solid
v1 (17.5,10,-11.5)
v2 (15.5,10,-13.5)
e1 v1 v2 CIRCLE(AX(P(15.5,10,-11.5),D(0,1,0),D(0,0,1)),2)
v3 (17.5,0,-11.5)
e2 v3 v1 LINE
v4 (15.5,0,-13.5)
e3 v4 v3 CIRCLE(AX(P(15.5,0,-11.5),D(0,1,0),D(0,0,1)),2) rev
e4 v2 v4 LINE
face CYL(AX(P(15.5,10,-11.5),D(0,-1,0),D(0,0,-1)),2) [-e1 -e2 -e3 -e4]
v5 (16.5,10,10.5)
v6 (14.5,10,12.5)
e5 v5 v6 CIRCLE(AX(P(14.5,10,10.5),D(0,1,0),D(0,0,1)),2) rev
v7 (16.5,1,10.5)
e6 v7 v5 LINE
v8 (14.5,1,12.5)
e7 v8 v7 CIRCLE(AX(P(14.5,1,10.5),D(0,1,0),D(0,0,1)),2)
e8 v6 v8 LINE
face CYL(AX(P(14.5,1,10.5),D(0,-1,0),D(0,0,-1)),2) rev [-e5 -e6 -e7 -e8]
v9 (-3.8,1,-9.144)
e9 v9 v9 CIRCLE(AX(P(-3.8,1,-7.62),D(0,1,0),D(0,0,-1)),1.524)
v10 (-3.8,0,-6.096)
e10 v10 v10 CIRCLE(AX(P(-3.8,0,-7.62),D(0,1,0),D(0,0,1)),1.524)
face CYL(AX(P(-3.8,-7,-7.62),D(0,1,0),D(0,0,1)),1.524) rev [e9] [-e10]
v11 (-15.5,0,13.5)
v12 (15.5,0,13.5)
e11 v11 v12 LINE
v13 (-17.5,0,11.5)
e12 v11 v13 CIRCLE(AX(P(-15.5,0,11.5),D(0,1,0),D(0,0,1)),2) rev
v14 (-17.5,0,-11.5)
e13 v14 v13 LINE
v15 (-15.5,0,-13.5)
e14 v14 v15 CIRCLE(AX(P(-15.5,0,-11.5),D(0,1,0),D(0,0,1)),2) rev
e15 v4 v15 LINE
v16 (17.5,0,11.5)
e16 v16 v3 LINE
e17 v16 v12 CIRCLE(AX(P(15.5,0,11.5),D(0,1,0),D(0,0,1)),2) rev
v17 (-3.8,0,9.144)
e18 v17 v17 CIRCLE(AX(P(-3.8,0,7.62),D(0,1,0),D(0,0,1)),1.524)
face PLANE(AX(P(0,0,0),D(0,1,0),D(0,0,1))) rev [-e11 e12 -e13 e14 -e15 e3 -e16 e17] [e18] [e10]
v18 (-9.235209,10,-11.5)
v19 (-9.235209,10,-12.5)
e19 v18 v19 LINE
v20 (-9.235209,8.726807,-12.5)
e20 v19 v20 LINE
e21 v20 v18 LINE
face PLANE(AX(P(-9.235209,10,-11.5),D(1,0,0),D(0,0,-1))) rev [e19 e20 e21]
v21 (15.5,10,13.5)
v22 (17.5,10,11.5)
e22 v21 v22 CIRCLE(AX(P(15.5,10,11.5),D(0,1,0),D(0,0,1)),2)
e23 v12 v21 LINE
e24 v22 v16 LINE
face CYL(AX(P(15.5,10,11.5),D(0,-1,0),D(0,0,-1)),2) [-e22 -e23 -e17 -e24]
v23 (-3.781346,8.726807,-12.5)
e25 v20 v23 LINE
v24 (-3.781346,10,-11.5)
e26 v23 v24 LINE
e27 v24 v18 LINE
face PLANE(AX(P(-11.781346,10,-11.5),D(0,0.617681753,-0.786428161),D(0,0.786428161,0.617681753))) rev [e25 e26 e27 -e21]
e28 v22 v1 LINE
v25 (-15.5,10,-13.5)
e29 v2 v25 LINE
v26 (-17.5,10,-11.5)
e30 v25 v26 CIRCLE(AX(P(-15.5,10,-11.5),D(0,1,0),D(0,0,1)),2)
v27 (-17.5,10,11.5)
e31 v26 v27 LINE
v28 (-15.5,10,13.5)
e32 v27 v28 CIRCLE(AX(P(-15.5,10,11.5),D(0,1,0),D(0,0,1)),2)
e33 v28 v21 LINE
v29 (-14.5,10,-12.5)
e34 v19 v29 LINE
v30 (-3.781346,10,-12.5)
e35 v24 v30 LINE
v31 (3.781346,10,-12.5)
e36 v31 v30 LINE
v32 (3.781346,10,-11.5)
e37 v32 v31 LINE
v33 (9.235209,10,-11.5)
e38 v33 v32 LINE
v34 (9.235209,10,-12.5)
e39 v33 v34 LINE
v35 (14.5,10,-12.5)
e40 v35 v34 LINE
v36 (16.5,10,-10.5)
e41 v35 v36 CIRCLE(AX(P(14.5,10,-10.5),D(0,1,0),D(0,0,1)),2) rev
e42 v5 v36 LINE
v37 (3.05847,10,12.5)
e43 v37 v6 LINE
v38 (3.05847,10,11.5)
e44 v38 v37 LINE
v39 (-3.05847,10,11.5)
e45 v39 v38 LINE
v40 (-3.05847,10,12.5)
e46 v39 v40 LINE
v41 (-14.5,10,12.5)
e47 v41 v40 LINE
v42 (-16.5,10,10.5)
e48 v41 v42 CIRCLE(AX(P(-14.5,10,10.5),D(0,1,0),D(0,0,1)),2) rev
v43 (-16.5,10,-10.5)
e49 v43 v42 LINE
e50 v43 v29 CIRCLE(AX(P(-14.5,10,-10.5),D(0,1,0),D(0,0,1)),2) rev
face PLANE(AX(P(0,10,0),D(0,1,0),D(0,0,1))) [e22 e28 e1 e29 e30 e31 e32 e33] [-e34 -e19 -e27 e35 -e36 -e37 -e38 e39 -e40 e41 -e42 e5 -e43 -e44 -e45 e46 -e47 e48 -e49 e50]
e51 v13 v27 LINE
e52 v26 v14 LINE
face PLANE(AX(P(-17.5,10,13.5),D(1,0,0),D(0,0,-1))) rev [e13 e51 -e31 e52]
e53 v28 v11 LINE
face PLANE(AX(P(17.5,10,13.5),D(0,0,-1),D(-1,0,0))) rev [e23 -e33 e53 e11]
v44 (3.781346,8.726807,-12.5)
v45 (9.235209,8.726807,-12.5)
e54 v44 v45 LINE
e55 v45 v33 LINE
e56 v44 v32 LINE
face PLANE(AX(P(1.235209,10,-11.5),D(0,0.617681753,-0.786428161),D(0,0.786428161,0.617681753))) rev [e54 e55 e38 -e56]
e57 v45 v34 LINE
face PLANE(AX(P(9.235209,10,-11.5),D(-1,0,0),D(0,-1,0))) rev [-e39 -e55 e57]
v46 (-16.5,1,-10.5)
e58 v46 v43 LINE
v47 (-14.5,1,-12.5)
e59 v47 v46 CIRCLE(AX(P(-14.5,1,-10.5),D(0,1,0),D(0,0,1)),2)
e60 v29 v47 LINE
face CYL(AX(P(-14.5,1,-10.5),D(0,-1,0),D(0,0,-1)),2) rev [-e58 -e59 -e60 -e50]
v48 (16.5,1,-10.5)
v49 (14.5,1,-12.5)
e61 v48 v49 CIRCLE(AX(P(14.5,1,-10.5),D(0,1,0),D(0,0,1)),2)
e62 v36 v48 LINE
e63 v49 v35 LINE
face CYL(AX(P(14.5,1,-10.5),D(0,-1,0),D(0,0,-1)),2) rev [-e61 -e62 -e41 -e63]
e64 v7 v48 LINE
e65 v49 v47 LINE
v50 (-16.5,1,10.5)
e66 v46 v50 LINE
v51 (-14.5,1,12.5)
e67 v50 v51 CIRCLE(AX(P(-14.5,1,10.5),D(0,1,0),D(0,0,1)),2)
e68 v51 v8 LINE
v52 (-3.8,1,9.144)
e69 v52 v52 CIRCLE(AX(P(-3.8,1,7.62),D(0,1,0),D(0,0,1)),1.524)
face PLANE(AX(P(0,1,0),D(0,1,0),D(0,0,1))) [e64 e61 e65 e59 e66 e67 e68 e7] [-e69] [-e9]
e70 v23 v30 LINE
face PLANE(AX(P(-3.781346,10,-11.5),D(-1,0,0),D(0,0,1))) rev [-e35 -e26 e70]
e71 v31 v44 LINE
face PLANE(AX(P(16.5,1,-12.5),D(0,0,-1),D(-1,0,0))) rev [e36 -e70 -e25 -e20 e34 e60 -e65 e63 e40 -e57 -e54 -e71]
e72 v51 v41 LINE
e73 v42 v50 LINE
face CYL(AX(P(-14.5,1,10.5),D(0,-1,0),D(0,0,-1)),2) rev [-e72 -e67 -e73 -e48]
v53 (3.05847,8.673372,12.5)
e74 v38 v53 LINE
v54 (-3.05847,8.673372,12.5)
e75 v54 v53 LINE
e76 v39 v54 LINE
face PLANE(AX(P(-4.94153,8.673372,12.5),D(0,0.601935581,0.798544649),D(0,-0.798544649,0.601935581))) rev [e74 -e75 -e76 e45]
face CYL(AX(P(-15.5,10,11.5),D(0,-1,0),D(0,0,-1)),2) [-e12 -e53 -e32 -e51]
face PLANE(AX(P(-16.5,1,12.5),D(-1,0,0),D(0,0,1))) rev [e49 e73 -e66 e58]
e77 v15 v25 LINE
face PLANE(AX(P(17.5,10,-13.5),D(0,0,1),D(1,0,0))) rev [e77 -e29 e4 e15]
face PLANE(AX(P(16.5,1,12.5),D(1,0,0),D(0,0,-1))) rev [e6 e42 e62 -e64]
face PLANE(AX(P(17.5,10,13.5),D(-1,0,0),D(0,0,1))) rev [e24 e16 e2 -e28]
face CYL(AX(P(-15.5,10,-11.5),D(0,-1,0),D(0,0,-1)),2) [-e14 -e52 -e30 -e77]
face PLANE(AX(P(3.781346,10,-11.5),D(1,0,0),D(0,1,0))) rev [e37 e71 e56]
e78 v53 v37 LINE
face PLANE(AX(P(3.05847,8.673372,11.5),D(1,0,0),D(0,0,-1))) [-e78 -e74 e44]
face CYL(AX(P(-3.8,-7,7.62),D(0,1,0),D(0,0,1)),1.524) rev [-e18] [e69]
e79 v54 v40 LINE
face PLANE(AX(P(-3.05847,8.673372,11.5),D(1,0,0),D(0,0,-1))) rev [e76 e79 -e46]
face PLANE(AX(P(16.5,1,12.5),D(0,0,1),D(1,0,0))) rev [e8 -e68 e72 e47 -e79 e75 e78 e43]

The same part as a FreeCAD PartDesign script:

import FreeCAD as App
import Part
import Sketcher
Q = App.Units.Quantity


def edges_at(feature, points):
    """Names of the edges that pass closest to the given points."""
    edges = feature.Shape.Edges
    near = lambda p: min(range(len(edges)), key=lambda i: edges[i].distToShape(Part.Vertex(*p))[0])
    return sorted({f"Edge{near(p) + 1}" for p in points})

doc = App.newDocument("Part")
params = doc.addObject("Spreadsheet::Sheet", "Params")
for row, (alias, value) in enumerate([
    ("sketch1_width", "35 mm"),
    ("sketch1_height", "27 mm"),
    ("pad1_length", "10 mm"),
    ("sketch2_width", "33 mm"),
    ("sketch2_height", "25 mm"),
    ("pocket1_length", "9 mm"),
    ("pad2_length", "1 mm"),
    ("pad3_length", "1 mm"),
    ("sketch5_height", "1 mm"),
    ("pocket2_length", "8 mm"),
    ("sketch6_height", "1 mm"),
    ("pocket3_length", "8 mm"),
    ("sketch7_height", "1 mm"),
    ("pocket4_length", "8 mm"),
    ("fillet_radius", "2 mm"),
    ("fillet2_radius", "2 mm"),
    ("pocket5_length", "8 mm"),
], start=1):
    params.set(f"A{row}", alias)
    params.set(f"B{row}", "=" + value)
    params.setAlias(f"B{row}", alias)

body = doc.addObject("PartDesign::Body", "Body")

sketch1 = doc.addObject("Sketcher::SketchObject", "Sketch")
body.addObject(sketch1)
sketch1.AttachmentSupport = (doc.XZ_Plane, [""])
sketch1.MapMode = "FlatFace"
sketch1.addGeometry([
    Part.LineSegment(App.Vector(-18, -14, 0), App.Vector(-18, 14, 0)),
    Part.LineSegment(App.Vector(-18, 14, 0), App.Vector(18, 14, 0)),
    Part.LineSegment(App.Vector(18, 14, 0), App.Vector(18, -14, 0)),
    Part.LineSegment(App.Vector(18, -14, 0), App.Vector(-18, -14, 0)),
], False)
sketch1.addConstraint([
    Sketcher.Constraint("Coincident", 0, 2, 1, 1),
    Sketcher.Constraint("Coincident", 1, 2, 2, 1),
    Sketcher.Constraint("Coincident", 2, 2, 3, 1),
    Sketcher.Constraint("Coincident", 3, 2, 0, 1),
    Sketcher.Constraint("Vertical", 0),
    Sketcher.Constraint("Horizontal", 1),
    Sketcher.Constraint("Vertical", 2),
    Sketcher.Constraint("Horizontal", 3),
    Sketcher.Constraint("Symmetric", 0, 2, 2, 2, -1, 1),
    Sketcher.Constraint("DistanceX", 1, 1, 1, 2, Q("35 mm")),
    Sketcher.Constraint("DistanceY", 0, 1, 0, 2, Q("27 mm")),
])
sketch1.setExpression("Constraints[9]", "Params.sketch1_width")
sketch1.setExpression("Constraints[10]", "Params.sketch1_height")
pad1 = doc.addObject("PartDesign::Pad", "Pad")
body.addObject(pad1)
pad1.Profile = sketch1
pad1.setExpression("Length", "Params.pad1_length")
pad1.Reversed = True

sketch2 = doc.addObject("Sketcher::SketchObject", "Sketch001")
body.addObject(sketch2)
sketch2.AttachmentSupport = (doc.XZ_Plane, [""])
sketch2.MapMode = "FlatFace"
sketch2.AttachmentOffset = App.Placement(App.Vector(0, 0, -10), App.Rotation())
sketch2.addGeometry([
    Part.LineSegment(App.Vector(-16, -12, 0), App.Vector(-16, 12, 0)),
    Part.LineSegment(App.Vector(-16, 12, 0), App.Vector(16, 12, 0)),
    Part.LineSegment(App.Vector(16, 12, 0), App.Vector(16, -12, 0)),
    Part.LineSegment(App.Vector(16, -12, 0), App.Vector(-16, -12, 0)),
], False)
sketch2.addConstraint([
    Sketcher.Constraint("Coincident", 0, 2, 1, 1),
    Sketcher.Constraint("Coincident", 1, 2, 2, 1),
    Sketcher.Constraint("Coincident", 2, 2, 3, 1),
    Sketcher.Constraint("Coincident", 3, 2, 0, 1),
    Sketcher.Constraint("Vertical", 0),
    Sketcher.Constraint("Horizontal", 1),
    Sketcher.Constraint("Vertical", 2),
    Sketcher.Constraint("Horizontal", 3),
    Sketcher.Constraint("Symmetric", 0, 2, 2, 2, -1, 1),
    Sketcher.Constraint("DistanceX", 1, 1, 1, 2, Q("33 mm")),
    Sketcher.Constraint("DistanceY", 0, 1, 0, 2, Q("25 mm")),
])
sketch2.setExpression("Constraints[9]", "Params.sketch2_width")
sketch2.setExpression("Constraints[10]", "Params.sketch2_height")
pocket1 = doc.addObject("PartDesign::Pocket", "Pocket")
body.addObject(pocket1)
pocket1.Profile = sketch2
pocket1.setExpression("Length", "Params.pocket1_length")
pocket1.Reversed = True

sketch3 = doc.addObject("Sketcher::SketchObject", "Sketch002")
body.addObject(sketch3)
sketch3.AttachmentSupport = (doc.XY_Plane, [""])
sketch3.MapMode = "FlatFace"
sketch3.AttachmentOffset = App.Placement(App.Vector(0, 0, -12.5), App.Rotation())
sketch3.addGeometry([
    Part.LineSegment(App.Vector(3.8, 10, 0), App.Vector(3.8, 8.7, 0)),
    Part.LineSegment(App.Vector(3.8, 8.7, 0), App.Vector(9.2, 8.7, 0)),
    Part.LineSegment(App.Vector(9.2, 8.7, 0), App.Vector(9.2, 10, 0)),
    Part.LineSegment(App.Vector(9.2, 10, 0), App.Vector(3.8, 10, 0)),
    Part.LineSegment(App.Vector(-9.2, 10, 0), App.Vector(-9.2, 8.7, 0)),
    Part.LineSegment(App.Vector(-9.2, 8.7, 0), App.Vector(-3.8, 8.7, 0)),
    Part.LineSegment(App.Vector(-3.8, 8.7, 0), App.Vector(-3.8, 10, 0)),
    Part.LineSegment(App.Vector(-3.8, 10, 0), App.Vector(-9.2, 10, 0)),
], False)
sketch3.addConstraint([
    Sketcher.Constraint("Coincident", 0, 2, 1, 1),
    Sketcher.Constraint("Coincident", 1, 2, 2, 1),
    Sketcher.Constraint("Coincident", 2, 2, 3, 1),
    Sketcher.Constraint("Coincident", 3, 2, 0, 1),
    Sketcher.Constraint("Coincident", 4, 2, 5, 1),
    Sketcher.Constraint("Coincident", 5, 2, 6, 1),
    Sketcher.Constraint("Coincident", 6, 2, 7, 1),
    Sketcher.Constraint("Coincident", 7, 2, 4, 1),
    Sketcher.Constraint("Vertical", 0),
    Sketcher.Constraint("Horizontal", 1),
    Sketcher.Constraint("Vertical", 2),
    Sketcher.Constraint("Horizontal", 3),
    Sketcher.Constraint("Vertical", 4),
    Sketcher.Constraint("Horizontal", 5),
    Sketcher.Constraint("Vertical", 6),
    Sketcher.Constraint("Horizontal", 7),
    Sketcher.Constraint("Symmetric", 1, 2, 4, 2, -2),
    Sketcher.Constraint("Symmetric", 3, 2, 6, 2, -2),
    Sketcher.Constraint("DistanceY", -1, 1, 2, 2, Q("10 mm")),
    Sketcher.Constraint("DistanceX", 1, 1, 1, 2, Q("5.453864 mm")),
    Sketcher.Constraint("DistanceY", 0, 2, 0, 1, Q("1.273193 mm")),
    Sketcher.Constraint("DistanceX", -1, 1, 1, 2, Q("9.235209 mm")),
])
pad2 = doc.addObject("PartDesign::Pad", "Pad001")
body.addObject(pad2)
pad2.Profile = sketch3
pad2.setExpression("Length", "Params.pad2_length")

sketch4 = doc.addObject("Sketcher::SketchObject", "Sketch003")
body.addObject(sketch4)
sketch4.AttachmentSupport = (doc.XY_Plane, [""])
sketch4.MapMode = "FlatFace"
sketch4.AttachmentOffset = App.Placement(App.Vector(0, 0, 12.5), App.Rotation())
sketch4.addGeometry([
    Part.LineSegment(App.Vector(3.1, 10, 0), App.Vector(3.1, 8.7, 0)),
    Part.LineSegment(App.Vector(3.1, 8.7, 0), App.Vector(-3.1, 8.7, 0)),
    Part.LineSegment(App.Vector(-3.1, 8.7, 0), App.Vector(-3.1, 10, 0)),
    Part.LineSegment(App.Vector(-3.1, 10, 0), App.Vector(3.1, 10, 0)),
], False)
sketch4.addConstraint([
    Sketcher.Constraint("Coincident", 0, 2, 1, 1),
    Sketcher.Constraint("Coincident", 1, 2, 2, 1),
    Sketcher.Constraint("Coincident", 2, 2, 3, 1),
    Sketcher.Constraint("Coincident", 3, 2, 0, 1),
    Sketcher.Constraint("Vertical", 0),
    Sketcher.Constraint("Horizontal", 1),
    Sketcher.Constraint("Vertical", 2),
    Sketcher.Constraint("Horizontal", 3),
    Sketcher.Constraint("DistanceY", -1, 1, 2, 2, Q("10 mm")),
    Sketcher.Constraint("DistanceX", 1, 2, 1, 1, Q("6.11694 mm")),
    Sketcher.Constraint("DistanceY", 0, 2, 0, 1, Q("1.326628 mm")),
    Sketcher.Constraint("DistanceX", -1, 1, 0, 2, Q("3.05847 mm")),
])
pad3 = doc.addObject("PartDesign::Pad", "Pad002")
body.addObject(pad3)
pad3.Profile = sketch4
pad3.setExpression("Length", "Params.pad3_length")
pad3.Reversed = True

sketch5 = doc.addObject("Sketcher::SketchObject", "Sketch004")
body.addObject(sketch5)
sketch5.AttachmentSupport = (doc.YZ_Plane, [""])
sketch5.MapMode = "FlatFace"
sketch5.AttachmentOffset = App.Placement(App.Vector(0, 0, 3.05847), App.Rotation())
sketch5.addGeometry([
    Part.LineSegment(App.Vector(10, 11.5, 0), App.Vector(8.7, 12.5, 0)),
    Part.LineSegment(App.Vector(8.7, 12.5, 0), App.Vector(8.7, 11.5, 0)),
    Part.LineSegment(App.Vector(8.7, 11.5, 0), App.Vector(10, 11.5, 0)),
], False)
sketch5.addConstraint([
    Sketcher.Constraint("Coincident", 0, 2, 1, 1),
    Sketcher.Constraint("Coincident", 1, 2, 2, 1),
    Sketcher.Constraint("Coincident", 2, 2, 0, 1),
    Sketcher.Constraint("Vertical", 1),
    Sketcher.Constraint("Horizontal", 2),
    Sketcher.Constraint("DistanceY", 1, 2, 1, 1, Q("1 mm")),
    Sketcher.Constraint("DistanceX", -1, 1, 2, 2, Q("10 mm")),
    Sketcher.Constraint("DistanceY", -1, 1, 0, 2, Q("12.5 mm")),
    Sketcher.Constraint("DistanceX", 2, 1, 2, 2, Q("1.326628 mm")),
])
sketch5.setExpression("Constraints[5]", "Params.sketch5_height")
pocket2 = doc.addObject("PartDesign::Pocket", "Pocket001")
body.addObject(pocket2)
pocket2.Profile = sketch5
pocket2.setExpression("Length", "Params.pocket2_length")

sketch6 = doc.addObject("Sketcher::SketchObject", "Sketch005")
body.addObject(sketch6)
sketch6.AttachmentSupport = (doc.YZ_Plane, [""])
sketch6.MapMode = "FlatFace"
sketch6.AttachmentOffset = App.Placement(App.Vector(0, 0, 9.235209), App.Rotation())
sketch6.addGeometry([
    Part.LineSegment(App.Vector(8.7, -12.5, 0), App.Vector(10, -11.5, 0)),
    Part.LineSegment(App.Vector(10, -11.5, 0), App.Vector(8.7, -11.5, 0)),
    Part.LineSegment(App.Vector(8.7, -11.5, 0), App.Vector(8.7, -12.5, 0)),
], False)
sketch6.addConstraint([
    Sketcher.Constraint("Coincident", 0, 2, 1, 1),
    Sketcher.Constraint("Coincident", 1, 2, 2, 1),
    Sketcher.Constraint("Coincident", 2, 2, 0, 1),
    Sketcher.Constraint("Horizontal", 1),
    Sketcher.Constraint("Vertical", 2),
    Sketcher.Constraint("DistanceY", 2, 2, 2, 1, Q("1 mm")),
    Sketcher.Constraint("DistanceX", -1, 1, 0, 2, Q("10 mm")),
    Sketcher.Constraint("DistanceY", 0, 2, -1, 1, Q("11.5 mm")),
    Sketcher.Constraint("DistanceX", 1, 2, 1, 1, Q("1.273193 mm")),
])
sketch6.setExpression("Constraints[5]", "Params.sketch6_height")
pocket3 = doc.addObject("PartDesign::Pocket", "Pocket002")
body.addObject(pocket3)
pocket3.Profile = sketch6
pocket3.setExpression("Length", "Params.pocket3_length")

sketch7 = doc.addObject("Sketcher::SketchObject", "Sketch006")
body.addObject(sketch7)
sketch7.AttachmentSupport = (doc.YZ_Plane, [""])
sketch7.MapMode = "FlatFace"
sketch7.AttachmentOffset = App.Placement(App.Vector(0, 0, -3.781346), App.Rotation())
sketch7.addGeometry([
    Part.LineSegment(App.Vector(8.7, -12.5, 0), App.Vector(10, -11.5, 0)),
    Part.LineSegment(App.Vector(10, -11.5, 0), App.Vector(8.7, -11.5, 0)),
    Part.LineSegment(App.Vector(8.7, -11.5, 0), App.Vector(8.7, -12.5, 0)),
], False)
sketch7.addConstraint([
    Sketcher.Constraint("Coincident", 0, 2, 1, 1),
    Sketcher.Constraint("Coincident", 1, 2, 2, 1),
    Sketcher.Constraint("Coincident", 2, 2, 0, 1),
    Sketcher.Constraint("Horizontal", 1),
    Sketcher.Constraint("Vertical", 2),
    Sketcher.Constraint("DistanceY", 2, 2, 2, 1, Q("1 mm")),
    Sketcher.Constraint("DistanceX", -1, 1, 0, 2, Q("10 mm")),
    Sketcher.Constraint("DistanceY", 0, 2, -1, 1, Q("11.5 mm")),
    Sketcher.Constraint("DistanceX", 1, 2, 1, 1, Q("1.273193 mm")),
])
sketch7.setExpression("Constraints[5]", "Params.sketch7_height")
pocket4 = doc.addObject("PartDesign::Pocket", "Pocket003")
body.addObject(pocket4)
pocket4.Profile = sketch7
pocket4.setExpression("Length", "Params.pocket4_length")
doc.recompute()

fillet = doc.addObject("PartDesign::Fillet", "Fillet")
body.addObject(fillet)
fillet.Base = (pocket4, edges_at(pocket4, [
    (-17.5, 5, -13.5),
    (17.5, 5, -13.5),
    (17.5, 5, 13.5),
    (-17.5, 5, 13.5),
]))
fillet.setExpression("Radius", "Params.fillet_radius")
doc.recompute()

fillet2 = doc.addObject("PartDesign::Fillet", "Fillet001")
body.addObject(fillet2)
fillet2.Base = (fillet, edges_at(fillet, [
    (-16.5, 5.5, 12.5),
    (-16.5, 5.5, -12.5),
    (16.5, 5.5, -12.5),
    (16.5, 5.5, 12.5),
]))
fillet2.setExpression("Radius", "Params.fillet2_radius")

sketch8 = doc.addObject("Sketcher::SketchObject", "Sketch007")
body.addObject(sketch8)
sketch8.AttachmentSupport = (doc.XZ_Plane, [""])
sketch8.MapMode = "FlatFace"
sketch8.AttachmentOffset = App.Placement(App.Vector(0, 0, -1), App.Rotation())
sketch8.addGeometry([
    Part.Circle(App.Vector(-3.8, 7.6, 0), App.Vector(0, 0, 1), 1.5),
    Part.Circle(App.Vector(-3.8, -7.6, 0), App.Vector(0, 0, 1), 1.5),
], False)
sketch8.addConstraint([
    Sketcher.Constraint("Equal", 0, 1),
    Sketcher.Constraint("Symmetric", 0, 3, 1, 3, -1),
    Sketcher.Constraint("Diameter", 0, Q("3.048 mm")),
    Sketcher.Constraint("DistanceX", 0, 3, -1, 1, Q("3.8 mm")),
    Sketcher.Constraint("DistanceY", -1, 1, 0, 3, Q("7.62 mm")),
])
pocket5 = doc.addObject("PartDesign::Pocket", "Pocket004")
body.addObject(pocket5)
pocket5.Profile = sketch8
pocket5.setExpression("Length", "Params.pocket5_length")
pocket5.Reversed = True

doc.recompute()
